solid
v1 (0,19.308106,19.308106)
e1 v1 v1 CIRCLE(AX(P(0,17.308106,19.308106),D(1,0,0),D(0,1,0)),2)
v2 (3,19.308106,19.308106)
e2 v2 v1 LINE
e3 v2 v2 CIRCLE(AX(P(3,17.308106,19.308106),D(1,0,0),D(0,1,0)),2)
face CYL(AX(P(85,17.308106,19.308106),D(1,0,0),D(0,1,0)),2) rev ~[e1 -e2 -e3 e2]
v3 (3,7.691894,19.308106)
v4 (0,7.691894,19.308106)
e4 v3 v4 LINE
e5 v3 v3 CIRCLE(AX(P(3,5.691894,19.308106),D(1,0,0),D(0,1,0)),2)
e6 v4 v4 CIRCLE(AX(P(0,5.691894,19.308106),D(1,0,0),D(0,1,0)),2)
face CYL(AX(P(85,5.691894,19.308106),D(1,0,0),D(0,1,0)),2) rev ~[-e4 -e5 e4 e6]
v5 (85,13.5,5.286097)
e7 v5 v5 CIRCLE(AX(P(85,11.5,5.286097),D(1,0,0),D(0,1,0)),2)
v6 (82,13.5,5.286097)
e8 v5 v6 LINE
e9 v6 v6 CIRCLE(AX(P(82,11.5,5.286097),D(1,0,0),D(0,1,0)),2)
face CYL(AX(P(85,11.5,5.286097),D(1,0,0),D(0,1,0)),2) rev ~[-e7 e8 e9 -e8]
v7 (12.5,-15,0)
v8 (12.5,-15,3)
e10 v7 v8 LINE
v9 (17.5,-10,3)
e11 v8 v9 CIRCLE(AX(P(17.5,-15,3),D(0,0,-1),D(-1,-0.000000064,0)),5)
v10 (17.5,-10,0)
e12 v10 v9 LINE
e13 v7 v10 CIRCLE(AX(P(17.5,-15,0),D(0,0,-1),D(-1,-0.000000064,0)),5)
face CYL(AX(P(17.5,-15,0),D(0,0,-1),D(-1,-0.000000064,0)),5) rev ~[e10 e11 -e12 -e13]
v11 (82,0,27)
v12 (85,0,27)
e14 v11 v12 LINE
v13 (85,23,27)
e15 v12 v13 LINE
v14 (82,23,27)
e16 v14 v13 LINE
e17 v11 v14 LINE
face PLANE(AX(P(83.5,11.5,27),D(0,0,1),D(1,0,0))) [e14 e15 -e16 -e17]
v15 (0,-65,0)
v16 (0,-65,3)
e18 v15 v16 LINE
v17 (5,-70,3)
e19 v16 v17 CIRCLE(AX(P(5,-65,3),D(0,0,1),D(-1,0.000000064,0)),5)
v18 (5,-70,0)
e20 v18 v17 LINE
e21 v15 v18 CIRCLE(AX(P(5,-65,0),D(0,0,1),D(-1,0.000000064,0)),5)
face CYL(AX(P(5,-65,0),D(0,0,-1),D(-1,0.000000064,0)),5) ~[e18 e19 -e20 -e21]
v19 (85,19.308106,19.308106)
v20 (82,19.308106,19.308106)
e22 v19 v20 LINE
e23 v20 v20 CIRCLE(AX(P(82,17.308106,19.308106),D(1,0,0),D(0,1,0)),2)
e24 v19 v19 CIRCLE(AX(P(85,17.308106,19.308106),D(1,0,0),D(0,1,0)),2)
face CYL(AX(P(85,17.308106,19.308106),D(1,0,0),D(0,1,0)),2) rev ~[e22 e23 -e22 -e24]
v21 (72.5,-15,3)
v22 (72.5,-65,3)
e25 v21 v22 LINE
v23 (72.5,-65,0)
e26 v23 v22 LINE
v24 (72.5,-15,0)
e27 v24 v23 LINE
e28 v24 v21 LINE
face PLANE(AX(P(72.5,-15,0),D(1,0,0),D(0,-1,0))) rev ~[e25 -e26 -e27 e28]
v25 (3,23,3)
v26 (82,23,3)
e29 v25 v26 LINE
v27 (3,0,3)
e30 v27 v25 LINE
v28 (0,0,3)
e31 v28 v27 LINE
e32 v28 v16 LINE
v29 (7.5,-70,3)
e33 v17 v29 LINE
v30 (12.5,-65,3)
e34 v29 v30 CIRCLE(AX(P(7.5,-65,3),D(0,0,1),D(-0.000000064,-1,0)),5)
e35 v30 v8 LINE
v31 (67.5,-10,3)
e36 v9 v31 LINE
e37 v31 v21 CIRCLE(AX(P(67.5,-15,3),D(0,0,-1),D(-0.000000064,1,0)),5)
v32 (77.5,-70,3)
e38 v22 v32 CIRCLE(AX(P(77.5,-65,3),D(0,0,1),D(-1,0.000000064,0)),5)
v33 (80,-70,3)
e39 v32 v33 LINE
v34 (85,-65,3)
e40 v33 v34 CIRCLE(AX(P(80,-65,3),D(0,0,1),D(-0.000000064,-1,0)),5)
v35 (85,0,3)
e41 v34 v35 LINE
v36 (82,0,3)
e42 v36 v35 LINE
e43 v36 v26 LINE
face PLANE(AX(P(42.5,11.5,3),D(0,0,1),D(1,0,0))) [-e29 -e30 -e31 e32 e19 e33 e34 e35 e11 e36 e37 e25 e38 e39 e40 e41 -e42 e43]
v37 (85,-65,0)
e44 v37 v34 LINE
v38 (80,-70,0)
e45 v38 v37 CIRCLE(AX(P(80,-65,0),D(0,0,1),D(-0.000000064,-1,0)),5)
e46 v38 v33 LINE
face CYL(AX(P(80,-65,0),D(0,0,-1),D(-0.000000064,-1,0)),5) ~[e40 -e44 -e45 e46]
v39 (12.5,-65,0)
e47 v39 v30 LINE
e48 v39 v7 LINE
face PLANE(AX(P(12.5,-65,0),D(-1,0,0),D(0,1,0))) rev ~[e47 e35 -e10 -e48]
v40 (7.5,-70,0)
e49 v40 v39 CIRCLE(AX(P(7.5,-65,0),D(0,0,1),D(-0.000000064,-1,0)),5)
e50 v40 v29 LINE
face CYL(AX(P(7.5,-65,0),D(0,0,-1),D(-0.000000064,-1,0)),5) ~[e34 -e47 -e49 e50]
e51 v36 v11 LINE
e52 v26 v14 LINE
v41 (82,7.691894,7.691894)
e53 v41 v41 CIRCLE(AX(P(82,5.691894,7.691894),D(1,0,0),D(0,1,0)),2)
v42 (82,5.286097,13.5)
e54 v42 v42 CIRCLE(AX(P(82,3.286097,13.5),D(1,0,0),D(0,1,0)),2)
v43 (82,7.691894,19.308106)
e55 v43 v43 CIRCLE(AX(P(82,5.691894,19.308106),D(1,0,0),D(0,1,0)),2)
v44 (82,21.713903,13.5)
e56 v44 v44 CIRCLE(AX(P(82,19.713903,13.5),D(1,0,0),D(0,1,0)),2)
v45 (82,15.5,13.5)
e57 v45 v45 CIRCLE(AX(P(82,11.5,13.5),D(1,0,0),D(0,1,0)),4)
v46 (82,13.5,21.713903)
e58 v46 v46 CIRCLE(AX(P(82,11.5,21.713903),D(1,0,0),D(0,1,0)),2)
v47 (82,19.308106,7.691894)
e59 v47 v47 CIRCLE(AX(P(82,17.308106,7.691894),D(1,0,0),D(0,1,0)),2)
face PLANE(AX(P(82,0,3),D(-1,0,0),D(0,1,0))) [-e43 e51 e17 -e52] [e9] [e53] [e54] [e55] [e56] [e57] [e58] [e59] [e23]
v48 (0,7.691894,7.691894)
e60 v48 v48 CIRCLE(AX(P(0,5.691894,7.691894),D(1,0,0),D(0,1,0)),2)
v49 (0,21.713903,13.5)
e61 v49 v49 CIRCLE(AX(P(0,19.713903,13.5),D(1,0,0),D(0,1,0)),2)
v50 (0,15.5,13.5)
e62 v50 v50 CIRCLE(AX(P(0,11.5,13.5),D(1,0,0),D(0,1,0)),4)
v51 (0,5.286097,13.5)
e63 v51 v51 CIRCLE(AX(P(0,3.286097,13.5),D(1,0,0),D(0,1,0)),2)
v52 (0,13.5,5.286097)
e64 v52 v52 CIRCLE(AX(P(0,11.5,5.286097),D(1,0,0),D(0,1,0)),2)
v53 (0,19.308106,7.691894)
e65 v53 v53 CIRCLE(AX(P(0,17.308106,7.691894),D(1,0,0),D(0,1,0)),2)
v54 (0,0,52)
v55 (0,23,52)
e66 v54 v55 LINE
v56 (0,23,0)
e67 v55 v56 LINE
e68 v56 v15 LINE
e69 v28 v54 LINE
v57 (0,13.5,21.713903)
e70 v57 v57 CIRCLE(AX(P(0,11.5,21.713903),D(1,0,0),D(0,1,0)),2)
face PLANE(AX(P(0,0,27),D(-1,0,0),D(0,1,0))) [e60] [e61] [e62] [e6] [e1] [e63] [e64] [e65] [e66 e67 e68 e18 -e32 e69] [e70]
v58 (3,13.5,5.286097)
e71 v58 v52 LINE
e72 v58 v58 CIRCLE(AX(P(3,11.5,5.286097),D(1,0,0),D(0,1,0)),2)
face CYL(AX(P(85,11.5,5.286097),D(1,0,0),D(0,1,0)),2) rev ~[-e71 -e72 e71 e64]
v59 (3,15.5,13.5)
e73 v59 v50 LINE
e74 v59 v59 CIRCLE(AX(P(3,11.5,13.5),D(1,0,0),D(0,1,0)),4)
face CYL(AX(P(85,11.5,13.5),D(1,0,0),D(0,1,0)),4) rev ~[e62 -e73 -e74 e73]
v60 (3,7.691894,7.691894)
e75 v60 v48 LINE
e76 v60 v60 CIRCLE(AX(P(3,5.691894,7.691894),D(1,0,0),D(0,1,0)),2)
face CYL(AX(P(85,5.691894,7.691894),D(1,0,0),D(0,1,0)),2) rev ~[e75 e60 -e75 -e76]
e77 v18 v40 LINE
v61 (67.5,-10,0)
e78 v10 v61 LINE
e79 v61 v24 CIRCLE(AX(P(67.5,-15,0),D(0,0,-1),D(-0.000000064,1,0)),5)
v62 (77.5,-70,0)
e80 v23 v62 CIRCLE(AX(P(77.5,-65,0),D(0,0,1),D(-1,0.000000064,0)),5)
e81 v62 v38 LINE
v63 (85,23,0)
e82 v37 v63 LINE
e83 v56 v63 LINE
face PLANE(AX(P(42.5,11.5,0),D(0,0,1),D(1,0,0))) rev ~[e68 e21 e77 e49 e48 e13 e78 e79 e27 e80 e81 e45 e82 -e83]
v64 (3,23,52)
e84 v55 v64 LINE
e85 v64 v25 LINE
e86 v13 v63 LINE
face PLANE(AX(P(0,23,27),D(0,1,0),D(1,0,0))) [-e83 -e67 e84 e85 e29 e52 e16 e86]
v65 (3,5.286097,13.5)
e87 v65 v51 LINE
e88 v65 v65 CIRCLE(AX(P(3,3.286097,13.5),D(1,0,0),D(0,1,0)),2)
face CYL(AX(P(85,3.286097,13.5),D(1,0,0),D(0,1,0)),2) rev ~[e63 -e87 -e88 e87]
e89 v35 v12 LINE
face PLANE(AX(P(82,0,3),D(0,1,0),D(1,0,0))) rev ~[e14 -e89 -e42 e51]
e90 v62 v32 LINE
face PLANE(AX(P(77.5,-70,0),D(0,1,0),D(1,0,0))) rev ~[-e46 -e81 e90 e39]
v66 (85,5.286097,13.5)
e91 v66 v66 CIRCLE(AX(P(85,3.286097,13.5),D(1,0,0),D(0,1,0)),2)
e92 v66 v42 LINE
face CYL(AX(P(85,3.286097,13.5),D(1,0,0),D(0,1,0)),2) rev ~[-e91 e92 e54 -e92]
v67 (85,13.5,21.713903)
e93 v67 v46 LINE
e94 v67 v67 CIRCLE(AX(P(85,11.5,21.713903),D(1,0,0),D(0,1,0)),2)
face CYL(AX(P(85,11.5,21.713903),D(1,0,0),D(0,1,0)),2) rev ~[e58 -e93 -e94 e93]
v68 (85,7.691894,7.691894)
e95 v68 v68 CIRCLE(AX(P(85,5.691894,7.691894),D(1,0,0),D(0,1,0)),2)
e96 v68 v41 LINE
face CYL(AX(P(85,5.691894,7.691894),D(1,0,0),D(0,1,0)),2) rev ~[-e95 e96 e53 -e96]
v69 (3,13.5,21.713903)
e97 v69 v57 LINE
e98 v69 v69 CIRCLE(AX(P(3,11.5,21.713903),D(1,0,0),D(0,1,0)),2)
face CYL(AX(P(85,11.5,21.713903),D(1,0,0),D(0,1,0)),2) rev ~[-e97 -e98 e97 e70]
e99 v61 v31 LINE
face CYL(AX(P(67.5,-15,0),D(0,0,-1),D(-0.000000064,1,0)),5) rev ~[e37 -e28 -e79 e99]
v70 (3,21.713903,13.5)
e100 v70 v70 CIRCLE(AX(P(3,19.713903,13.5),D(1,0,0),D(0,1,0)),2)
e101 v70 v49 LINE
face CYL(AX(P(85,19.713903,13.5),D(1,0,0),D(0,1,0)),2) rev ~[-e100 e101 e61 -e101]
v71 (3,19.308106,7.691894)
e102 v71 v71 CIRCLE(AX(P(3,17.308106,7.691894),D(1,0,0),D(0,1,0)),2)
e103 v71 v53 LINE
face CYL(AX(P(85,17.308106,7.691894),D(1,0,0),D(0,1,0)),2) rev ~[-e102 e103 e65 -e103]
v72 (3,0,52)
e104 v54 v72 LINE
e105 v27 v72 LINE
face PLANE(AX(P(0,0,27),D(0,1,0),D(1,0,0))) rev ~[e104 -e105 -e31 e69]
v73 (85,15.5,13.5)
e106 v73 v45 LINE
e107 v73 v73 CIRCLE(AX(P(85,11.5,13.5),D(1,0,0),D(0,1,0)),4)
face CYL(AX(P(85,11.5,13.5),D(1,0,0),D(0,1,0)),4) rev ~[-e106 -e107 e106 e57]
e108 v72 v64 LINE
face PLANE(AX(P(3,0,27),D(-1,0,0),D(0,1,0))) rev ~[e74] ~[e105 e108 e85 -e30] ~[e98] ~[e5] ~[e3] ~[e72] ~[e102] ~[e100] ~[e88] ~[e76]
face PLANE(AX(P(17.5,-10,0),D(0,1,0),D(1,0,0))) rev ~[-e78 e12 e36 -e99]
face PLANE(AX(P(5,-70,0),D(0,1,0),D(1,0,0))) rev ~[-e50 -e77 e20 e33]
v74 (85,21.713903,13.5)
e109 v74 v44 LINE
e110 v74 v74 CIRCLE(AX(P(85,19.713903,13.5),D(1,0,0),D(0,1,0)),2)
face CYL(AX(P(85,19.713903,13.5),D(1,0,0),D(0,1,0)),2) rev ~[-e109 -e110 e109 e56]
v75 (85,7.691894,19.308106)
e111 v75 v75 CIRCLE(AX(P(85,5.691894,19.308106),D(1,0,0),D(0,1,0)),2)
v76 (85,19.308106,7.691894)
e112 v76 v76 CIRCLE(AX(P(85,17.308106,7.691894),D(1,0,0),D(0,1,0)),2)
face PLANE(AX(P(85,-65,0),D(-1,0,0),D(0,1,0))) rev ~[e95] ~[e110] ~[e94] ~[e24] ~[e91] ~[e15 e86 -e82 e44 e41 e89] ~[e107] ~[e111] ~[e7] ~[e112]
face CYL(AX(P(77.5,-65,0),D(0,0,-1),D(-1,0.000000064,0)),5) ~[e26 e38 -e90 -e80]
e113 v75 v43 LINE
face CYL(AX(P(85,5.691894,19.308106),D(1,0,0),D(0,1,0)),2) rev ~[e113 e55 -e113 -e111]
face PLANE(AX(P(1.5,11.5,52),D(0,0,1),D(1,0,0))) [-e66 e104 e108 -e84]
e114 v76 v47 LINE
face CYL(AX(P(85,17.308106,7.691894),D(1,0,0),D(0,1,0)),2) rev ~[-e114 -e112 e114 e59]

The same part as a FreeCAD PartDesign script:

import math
import FreeCAD as App
import Part
import Sketcher

V = App.Vector


def add_polygon(sketch, points):
    """Adds a closed chain of lines whose ends are joined by coincident constraints."""
    first, n = sketch.GeometryCount, len(points)
    for a, b in zip(points, points[1:] + points[:1]):
        sketch.addGeometry(Part.LineSegment(App.Vector(*a, 0), App.Vector(*b, 0)), False)
    for i in range(n):
        sketch.addConstraint(Sketcher.Constraint("Coincident", first + i, 2, first + (i + 1) % n, 1))

doc = App.newDocument("Part")
body = doc.addObject("PartDesign::Body", "Body")

sketch1 = doc.addObject("Sketcher::SketchObject", "Sketch")
body.addObject(sketch1)
sketch1.AttachmentSupport = (doc.XY_Plane, [""])
sketch1.MapMode = "FlatFace"
sketch1.addGeometry([
    Part.LineSegment(V(0, 23, 0), V(0, -65, 0)),
    Part.ArcOfCircle(Part.Circle(V(5, -65, 0), V(0, 0, 1), 5), math.radians(180), math.radians(270)),
    Part.LineSegment(V(5, -70, 0), V(7.5, -70, 0)),
    Part.ArcOfCircle(Part.Circle(V(7.5, -65, 0), V(0, 0, 1), 5), math.radians(-90), math.radians(0)),
    Part.LineSegment(V(12.5, -65, 0), V(12.5, -15, 0)),
    Part.ArcOfCircle(Part.Circle(V(17.5, -15, 0), V(0, 0, 1), 5), math.radians(90), math.radians(180)),
    Part.LineSegment(V(17.5, -10, 0), V(67.5, -10, 0)),
    Part.ArcOfCircle(Part.Circle(V(67.5, -15, 0), V(0, 0, 1), 5), math.radians(0), math.radians(90)),
    Part.LineSegment(V(72.5, -15, 0), V(72.5, -65, 0)),
    Part.ArcOfCircle(Part.Circle(V(77.5, -65, 0), V(0, 0, 1), 5), math.radians(180), math.radians(270)),
    Part.LineSegment(V(77.5, -70, 0), V(80, -70, 0)),
    Part.ArcOfCircle(Part.Circle(V(80, -65, 0), V(0, 0, 1), 5), math.radians(-90), math.radians(0)),
    Part.LineSegment(V(85, -65, 0), V(85, 23, 0)),
    Part.LineSegment(V(85, 23, 0), V(0, 23, 0)),
], False)
sketch1.addConstraint([
    Sketcher.Constraint("Tangent", 0, 2, 1, 1),
    Sketcher.Constraint("Tangent", 1, 2, 2, 1),
    Sketcher.Constraint("Tangent", 2, 2, 3, 1),
    Sketcher.Constraint("Tangent", 3, 2, 4, 1),
    Sketcher.Constraint("Tangent", 4, 2, 5, 2),
    Sketcher.Constraint("Tangent", 5, 1, 6, 1),
    Sketcher.Constraint("Tangent", 6, 2, 7, 2),
    Sketcher.Constraint("Tangent", 7, 1, 8, 1),
    Sketcher.Constraint("Tangent", 8, 2, 9, 1),
    Sketcher.Constraint("Tangent", 9, 2, 10, 1),
    Sketcher.Constraint("Tangent", 10, 2, 11, 1),
    Sketcher.Constraint("Tangent", 11, 2, 12, 1),
    Sketcher.Constraint("Coincident", 12, 2, 13, 1),
    Sketcher.Constraint("Coincident", 13, 2, 0, 1),
    Sketcher.Constraint("Vertical", 0),
    Sketcher.Constraint("Horizontal", 2),
    Sketcher.Constraint("Vertical", 4),
    Sketcher.Constraint("Horizontal", 6),
    Sketcher.Constraint("Vertical", 8),
    Sketcher.Constraint("Horizontal", 10),
    Sketcher.Constraint("Vertical", 12),
    Sketcher.Constraint("Horizontal", 13),
    Sketcher.Constraint("Equal", 1, 3),
    Sketcher.Constraint("Equal", 3, 5),
    Sketcher.Constraint("Equal", 5, 7),
    Sketcher.Constraint("Equal", 7, 9),
    Sketcher.Constraint("Equal", 9, 11),
    Sketcher.Constraint("PointOnObject", 0, 2, -2),
    Sketcher.Constraint("Horizontal", 3, 3, 9, 3),
    Sketcher.Constraint("Equal", 2, 10),
    Sketcher.Constraint("Equal", 6, 4),
    Sketcher.Constraint("Radius", 1, 5.0),
    Sketcher.Constraint("DistanceX", 6, 1, 6, 2, 50.0),
    Sketcher.Constraint("DistanceX", 13, 2, 13, 1, 85.0),
    Sketcher.Constraint("DistanceY", 0, 2, 0, 1, 88.0),
    Sketcher.Constraint("DistanceY", 1, 3, -1, 1, 65.0),
])
pad1 = doc.addObject("PartDesign::Pad", "Pad")
body.addObject(pad1)
pad1.Profile = sketch1
pad1.Length = 3

sketch2 = doc.addObject("Sketcher::SketchObject", "Sketch001")
body.addObject(sketch2)
sketch2.AttachmentSupport = (doc.XY_Plane, [""])
sketch2.MapMode = "FlatFace"
sketch2.AttachmentOffset = App.Placement(V(0, 0, 3), App.Rotation())
add_polygon(sketch2, [(0, 23), (0, 0), (3, 0), (3, 23)])
add_polygon(sketch2, [(82, 23), (82, 0), (85, 0), (85, 23)])
sketch2.addConstraint([
    Sketcher.Constraint("Vertical", 0),
    Sketcher.Constraint("Horizontal", 1),
    Sketcher.Constraint("Vertical", 2),
    Sketcher.Constraint("Horizontal", 3),
    Sketcher.Constraint("Vertical", 4),
    Sketcher.Constraint("Horizontal", 5),
    Sketcher.Constraint("Vertical", 6),
    Sketcher.Constraint("Horizontal", 7),
    Sketcher.Constraint("Coincident", 0, 2, -1, 1),
    Sketcher.Constraint("PointOnObject", 4, 2, -1),
    Sketcher.Constraint("Horizontal", 3, 2, 6, 2),
    Sketcher.Constraint("Equal", 3, 5),
    Sketcher.Constraint("DistanceX", 1, 1, 1, 2, 3.0),
    Sketcher.Constraint("DistanceY", 0, 2, 0, 1, 23.0),
    Sketcher.Constraint("DistanceX", -1, 1, 4, 2, 82.0),
])
pad2 = doc.addObject("PartDesign::Pad", "Pad001")
body.addObject(pad2)
pad2.Profile = sketch2
pad2.Length = 24

sketch3 = doc.addObject("Sketcher::SketchObject", "Sketch002")
body.addObject(sketch3)
sketch3.AttachmentSupport = (doc.XY_Plane, [""])
sketch3.MapMode = "FlatFace"
sketch3.AttachmentOffset = App.Placement(V(0, 0, 27), App.Rotation())
add_polygon(sketch3, [(0, 23), (0, 0), (3, 0), (3, 23)])
sketch3.addConstraint([
    Sketcher.Constraint("Vertical", 0),
    Sketcher.Constraint("Horizontal", 1),
    Sketcher.Constraint("Vertical", 2),
    Sketcher.Constraint("Horizontal", 3),
    Sketcher.Constraint("Coincident", 0, 2, -1, 1),
    Sketcher.Constraint("DistanceX", 1, 1, 1, 2, 3.0),
    Sketcher.Constraint("DistanceY", 0, 2, 0, 1, 23.0),
])
pad3 = doc.addObject("PartDesign::Pad", "Pad002")
body.addObject(pad3)
pad3.Profile = sketch3
pad3.Length = 25

sketch4 = doc.addObject("Sketcher::SketchObject", "Sketch003")
body.addObject(sketch4)
sketch4.AttachmentSupport = (doc.YZ_Plane, [""])
sketch4.MapMode = "FlatFace"
sketch4.AttachmentOffset = App.Placement(V(0, 0, 85), App.Rotation())
sketch4.addGeometry([
    Part.Circle(V(11.5, 13.5, 0), V(0, 0, 1), 4),
    Part.Circle(V(19.7, 13.5, 0), V(0, 0, 1), 2),
    Part.Circle(V(17.3, 19.3, 0), V(0, 0, 1), 2),
    Part.Circle(V(11.5, 21.7, 0), V(0, 0, 1), 2),
    Part.Circle(V(5.7, 19.3, 0), V(0, 0, 1), 2),
    Part.Circle(V(3.3, 13.5, 0), V(0, 0, 1), 2),
    Part.Circle(V(5.7, 7.7, 0), V(0, 0, 1), 2),
    Part.Circle(V(11.5, 5.3, 0), V(0, 0, 1), 2),
    Part.Circle(V(17.3, 7.7, 0), V(0, 0, 1), 2),
], False)
sketch4.addConstraint([
    Sketcher.Constraint("Equal", 1, 2),
    Sketcher.Constraint("Equal", 2, 3),
    Sketcher.Constraint("Equal", 3, 4),
    Sketcher.Constraint("Equal", 4, 5),
    Sketcher.Constraint("Equal", 5, 6),
    Sketcher.Constraint("Equal", 6, 7),
    Sketcher.Constraint("Equal", 7, 8),
    Sketcher.Constraint("Horizontal", 0, 3, 1, 3),
    Sketcher.Constraint("Horizontal", 2, 3, 4, 3),
    Sketcher.Constraint("Horizontal", 1, 3, 5, 3),
    Sketcher.Constraint("Horizontal", 6, 3, 8, 3),
    Sketcher.Constraint("Vertical", 0, 3, 3, 3),
    Sketcher.Constraint("Vertical", 4, 3, 6, 3),
    Sketcher.Constraint("Vertical", 3, 3, 7, 3),
    Sketcher.Constraint("Vertical", 2, 3, 8, 3),
    Sketcher.Constraint("Diameter", 0, 8.0),
    Sketcher.Constraint("Diameter", 1, 4.0),
    Sketcher.Constraint("DistanceX", -1, 1, 0, 3, 11.5),
    Sketcher.Constraint("DistanceY", -1, 1, 0, 3, 13.5),
    Sketcher.Constraint("DistanceX", 4, 3, 2, 3, 11.616212),
    Sketcher.Constraint("DistanceX", 4, 3, 1, 3, 14.022009),
    Sketcher.Constraint("DistanceX", 5, 3, 2, 3, 14.022009),
    Sketcher.Constraint("DistanceY", 6, 3, 4, 3, 11.616212),
    Sketcher.Constraint("DistanceY", 6, 3, 3, 3, 14.022009),
    Sketcher.Constraint("DistanceY", 7, 3, 2, 3, 14.022009),
    Sketcher.Constraint("DistanceX", -1, 1, 1, 3, 19.713903),
    Sketcher.Constraint("DistanceY", -1, 1, 2, 3, 19.308106),
])
pocket1 = doc.addObject("PartDesign::Pocket", "Pocket")
body.addObject(pocket1)
pocket1.Profile = sketch4
pocket1.Length = 100

doc.recompute()
